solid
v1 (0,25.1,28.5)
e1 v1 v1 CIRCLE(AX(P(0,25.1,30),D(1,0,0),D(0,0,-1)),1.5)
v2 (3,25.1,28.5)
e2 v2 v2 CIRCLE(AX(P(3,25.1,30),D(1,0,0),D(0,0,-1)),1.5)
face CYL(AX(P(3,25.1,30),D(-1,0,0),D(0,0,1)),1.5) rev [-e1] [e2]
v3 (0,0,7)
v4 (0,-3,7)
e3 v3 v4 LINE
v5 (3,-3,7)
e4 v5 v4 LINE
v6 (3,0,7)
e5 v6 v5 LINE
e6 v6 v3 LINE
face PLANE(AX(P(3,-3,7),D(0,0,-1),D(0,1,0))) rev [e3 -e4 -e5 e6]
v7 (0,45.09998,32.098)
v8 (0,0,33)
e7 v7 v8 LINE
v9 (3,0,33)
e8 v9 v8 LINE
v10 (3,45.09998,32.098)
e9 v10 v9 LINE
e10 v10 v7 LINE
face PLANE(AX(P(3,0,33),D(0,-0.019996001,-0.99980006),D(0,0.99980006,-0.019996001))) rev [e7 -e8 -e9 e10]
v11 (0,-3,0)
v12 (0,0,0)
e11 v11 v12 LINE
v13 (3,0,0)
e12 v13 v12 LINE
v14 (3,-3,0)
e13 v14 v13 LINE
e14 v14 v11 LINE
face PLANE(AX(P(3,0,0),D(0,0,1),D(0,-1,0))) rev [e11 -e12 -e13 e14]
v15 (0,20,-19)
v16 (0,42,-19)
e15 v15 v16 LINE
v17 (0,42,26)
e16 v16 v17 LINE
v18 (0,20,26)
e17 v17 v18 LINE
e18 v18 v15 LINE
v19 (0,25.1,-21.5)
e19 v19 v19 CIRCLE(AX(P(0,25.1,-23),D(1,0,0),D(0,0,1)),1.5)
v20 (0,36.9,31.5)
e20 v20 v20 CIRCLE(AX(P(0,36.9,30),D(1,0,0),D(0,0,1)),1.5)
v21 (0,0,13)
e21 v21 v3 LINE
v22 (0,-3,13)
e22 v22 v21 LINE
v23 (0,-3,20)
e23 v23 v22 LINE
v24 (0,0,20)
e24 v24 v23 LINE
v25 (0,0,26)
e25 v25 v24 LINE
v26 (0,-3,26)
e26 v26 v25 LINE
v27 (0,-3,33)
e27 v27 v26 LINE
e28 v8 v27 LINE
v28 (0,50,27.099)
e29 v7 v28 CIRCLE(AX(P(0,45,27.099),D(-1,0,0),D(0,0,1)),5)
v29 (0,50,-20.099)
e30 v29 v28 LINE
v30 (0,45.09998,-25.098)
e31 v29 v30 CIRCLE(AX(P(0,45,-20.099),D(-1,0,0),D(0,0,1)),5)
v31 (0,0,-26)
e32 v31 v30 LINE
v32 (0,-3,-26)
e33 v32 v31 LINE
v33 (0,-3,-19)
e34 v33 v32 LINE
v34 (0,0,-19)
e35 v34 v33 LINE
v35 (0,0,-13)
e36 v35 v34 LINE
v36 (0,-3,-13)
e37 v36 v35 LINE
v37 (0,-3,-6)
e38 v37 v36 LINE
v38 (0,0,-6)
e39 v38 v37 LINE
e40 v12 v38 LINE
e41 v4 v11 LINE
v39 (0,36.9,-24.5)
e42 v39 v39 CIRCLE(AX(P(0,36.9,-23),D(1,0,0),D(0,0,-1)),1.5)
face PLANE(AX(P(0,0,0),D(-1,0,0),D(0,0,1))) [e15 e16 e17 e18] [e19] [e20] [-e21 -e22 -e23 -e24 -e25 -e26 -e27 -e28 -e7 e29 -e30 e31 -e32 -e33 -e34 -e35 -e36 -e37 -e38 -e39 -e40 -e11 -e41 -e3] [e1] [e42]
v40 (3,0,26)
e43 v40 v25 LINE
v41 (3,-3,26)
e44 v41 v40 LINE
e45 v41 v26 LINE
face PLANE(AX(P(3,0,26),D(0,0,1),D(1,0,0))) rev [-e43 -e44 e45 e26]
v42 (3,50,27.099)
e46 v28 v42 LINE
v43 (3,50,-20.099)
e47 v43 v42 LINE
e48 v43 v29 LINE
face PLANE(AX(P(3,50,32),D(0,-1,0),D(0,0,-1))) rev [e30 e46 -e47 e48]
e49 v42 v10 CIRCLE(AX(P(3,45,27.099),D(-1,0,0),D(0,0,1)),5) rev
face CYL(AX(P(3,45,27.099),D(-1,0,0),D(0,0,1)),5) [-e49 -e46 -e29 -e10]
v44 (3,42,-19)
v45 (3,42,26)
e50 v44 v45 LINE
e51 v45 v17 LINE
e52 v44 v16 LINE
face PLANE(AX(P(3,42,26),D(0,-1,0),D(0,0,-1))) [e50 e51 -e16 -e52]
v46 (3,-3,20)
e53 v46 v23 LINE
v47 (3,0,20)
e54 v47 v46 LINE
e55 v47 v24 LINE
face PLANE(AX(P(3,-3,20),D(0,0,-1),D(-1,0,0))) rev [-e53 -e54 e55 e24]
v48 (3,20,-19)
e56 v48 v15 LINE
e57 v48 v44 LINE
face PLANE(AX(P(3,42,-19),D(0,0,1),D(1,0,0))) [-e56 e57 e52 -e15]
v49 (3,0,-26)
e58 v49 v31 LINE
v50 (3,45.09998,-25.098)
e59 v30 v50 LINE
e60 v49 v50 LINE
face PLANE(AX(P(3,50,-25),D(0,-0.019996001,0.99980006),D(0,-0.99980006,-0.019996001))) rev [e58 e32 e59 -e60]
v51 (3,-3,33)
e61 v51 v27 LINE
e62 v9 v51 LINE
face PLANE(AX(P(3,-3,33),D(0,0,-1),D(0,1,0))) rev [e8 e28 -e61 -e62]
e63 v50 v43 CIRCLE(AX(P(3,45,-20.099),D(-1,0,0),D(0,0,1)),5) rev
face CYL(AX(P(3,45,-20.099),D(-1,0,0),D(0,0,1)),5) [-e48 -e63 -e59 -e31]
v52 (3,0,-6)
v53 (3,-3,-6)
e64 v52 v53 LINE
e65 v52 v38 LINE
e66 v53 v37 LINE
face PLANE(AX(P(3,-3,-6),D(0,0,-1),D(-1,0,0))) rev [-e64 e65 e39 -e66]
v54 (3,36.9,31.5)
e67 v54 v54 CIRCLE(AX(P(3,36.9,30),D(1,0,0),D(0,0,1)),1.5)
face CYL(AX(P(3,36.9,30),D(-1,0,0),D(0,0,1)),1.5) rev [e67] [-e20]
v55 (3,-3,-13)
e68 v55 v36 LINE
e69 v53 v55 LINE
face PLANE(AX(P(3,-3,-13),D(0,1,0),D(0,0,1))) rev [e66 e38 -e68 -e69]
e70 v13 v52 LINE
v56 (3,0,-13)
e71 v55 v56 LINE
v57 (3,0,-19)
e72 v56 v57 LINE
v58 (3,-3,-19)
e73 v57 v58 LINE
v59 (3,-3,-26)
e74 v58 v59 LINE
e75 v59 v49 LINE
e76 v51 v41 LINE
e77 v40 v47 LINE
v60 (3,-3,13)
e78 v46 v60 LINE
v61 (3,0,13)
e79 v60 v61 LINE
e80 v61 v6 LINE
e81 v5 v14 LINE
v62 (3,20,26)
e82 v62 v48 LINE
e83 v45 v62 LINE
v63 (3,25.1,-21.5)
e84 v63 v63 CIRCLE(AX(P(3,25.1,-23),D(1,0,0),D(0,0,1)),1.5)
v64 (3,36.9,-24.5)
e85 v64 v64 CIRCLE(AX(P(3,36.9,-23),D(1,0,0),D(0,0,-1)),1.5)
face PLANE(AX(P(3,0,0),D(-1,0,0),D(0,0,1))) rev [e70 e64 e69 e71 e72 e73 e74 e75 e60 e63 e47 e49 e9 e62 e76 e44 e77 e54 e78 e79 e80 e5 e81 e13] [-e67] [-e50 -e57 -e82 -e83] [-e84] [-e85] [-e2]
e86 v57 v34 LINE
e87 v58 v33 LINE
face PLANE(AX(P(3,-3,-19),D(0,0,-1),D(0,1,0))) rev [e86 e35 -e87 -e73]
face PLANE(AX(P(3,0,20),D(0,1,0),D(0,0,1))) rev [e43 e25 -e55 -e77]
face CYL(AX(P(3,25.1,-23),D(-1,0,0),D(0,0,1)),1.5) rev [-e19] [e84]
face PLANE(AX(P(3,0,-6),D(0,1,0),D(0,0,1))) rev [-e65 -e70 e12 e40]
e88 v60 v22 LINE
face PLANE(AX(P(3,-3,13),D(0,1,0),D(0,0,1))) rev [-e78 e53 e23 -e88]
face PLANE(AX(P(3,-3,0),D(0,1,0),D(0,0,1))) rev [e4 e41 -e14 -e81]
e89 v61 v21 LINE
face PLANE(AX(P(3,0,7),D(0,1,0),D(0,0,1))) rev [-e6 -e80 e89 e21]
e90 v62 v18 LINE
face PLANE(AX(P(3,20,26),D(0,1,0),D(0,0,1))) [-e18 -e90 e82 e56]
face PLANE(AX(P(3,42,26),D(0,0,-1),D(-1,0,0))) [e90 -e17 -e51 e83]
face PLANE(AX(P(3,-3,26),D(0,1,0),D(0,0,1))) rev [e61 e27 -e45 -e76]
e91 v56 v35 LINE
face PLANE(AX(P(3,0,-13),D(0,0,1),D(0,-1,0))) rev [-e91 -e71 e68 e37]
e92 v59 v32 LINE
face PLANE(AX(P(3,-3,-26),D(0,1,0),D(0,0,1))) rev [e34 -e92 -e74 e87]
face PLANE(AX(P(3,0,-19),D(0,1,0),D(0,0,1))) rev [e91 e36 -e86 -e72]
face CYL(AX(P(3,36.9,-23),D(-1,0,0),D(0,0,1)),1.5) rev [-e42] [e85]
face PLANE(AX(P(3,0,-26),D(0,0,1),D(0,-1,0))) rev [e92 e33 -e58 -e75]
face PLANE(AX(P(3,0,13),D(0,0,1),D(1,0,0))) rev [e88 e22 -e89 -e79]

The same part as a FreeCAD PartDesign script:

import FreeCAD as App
import Part
import Sketcher
from FreeCAD import Vector


def edges_at(feature, points):
    """Names of the edges that pass closest to the given points."""
    edges = feature.Shape.Edges
    near = lambda p: min(range(len(edges)), key=lambda i: edges[i].distToShape(Part.Vertex(*p))[0])
    return sorted({f"Edge{near(p) + 1}" for p in points})


def add_polygon(sketch, points):
    """Adds a closed chain of lines whose ends are joined by coincident constraints."""
    first, n = sketch.GeometryCount, len(points)
    for a, b in zip(points, points[1:] + points[:1]):
        sketch.addGeometry(Part.LineSegment(App.Vector(*a, 0), App.Vector(*b, 0)), False)
    for i in range(n):
        sketch.addConstraint(Sketcher.Constraint("Coincident", first + i, 2, first + (i + 1) % n, 1))

doc = App.newDocument("Part")
params = doc.addObject("Spreadsheet::Sheet", "Params")
for row, (alias, value) in enumerate([
    ("sketch1_diameter", "3 mm"),
    ("sketch1_width", "3 mm"),
    ("sketch1_width2", "22 mm"),
    ("sketch1_height", "7 mm"),
    ("sketch1_height2", "6 mm"),
    ("pad1_length", "3 mm"),
    ("fillet_radius", "5 mm"),
], start=1):
    params.set(f"A{row}", alias)
    params.set(f"B{row}", "=" + value)
    params.setAlias(f"B{row}", alias)

body = doc.addObject("PartDesign::Body", "Body")

sketch1 = body.newObject("Sketcher::SketchObject", "Sketch")
sketch1.AttachmentSupport = (doc.getObject("YZ_Plane"), [""])
sketch1.MapMode = "FlatFace"
add_polygon(sketch1, [(50, 32), (0, 33), (-3, 33), (-3, 26), (0, 26), (0, 20), (-3, 20), (-3, 13), (0, 13), (0, 7), (-3, 7), (-3, 0), (0, 0), (0, -6), (-3, -6), (-3, -13), (0, -13), (0, -19), (-3, -19), (-3, -26), (0, -26), (50, -25)])
sketch1.addGeometry(Part.Circle(Vector(25.1, -23, 0), Vector(0, 0, 1), 1.5), False)
sketch1.addGeometry(Part.Circle(Vector(25.1, 30, 0), Vector(0, 0, 1), 1.5), False)
sketch1.addGeometry(Part.Circle(Vector(36.9, -23, 0), Vector(0, 0, 1), 1.5), False)
add_polygon(sketch1, [(20, 26), (42, 26), (42, -19), (20, -19)])
sketch1.addGeometry(Part.Circle(Vector(36.9, 30, 0), Vector(0, 0, 1), 1.5), False)
sketch1.addConstraint([
    Sketcher.Constraint("Horizontal", 1),
    Sketcher.Constraint("Vertical", 2),
    Sketcher.Constraint("Horizontal", 3),
    Sketcher.Constraint("Vertical", 4),
    Sketcher.Constraint("Horizontal", 5),
    Sketcher.Constraint("Vertical", 6),
    Sketcher.Constraint("Horizontal", 7),
    Sketcher.Constraint("Vertical", 8),
    Sketcher.Constraint("Horizontal", 9),
    Sketcher.Constraint("Vertical", 10),
    Sketcher.Constraint("Horizontal", 11),
    Sketcher.Constraint("Vertical", 12),
    Sketcher.Constraint("Horizontal", 13),
    Sketcher.Constraint("Vertical", 14),
    Sketcher.Constraint("Horizontal", 15),
    Sketcher.Constraint("Vertical", 16),
    Sketcher.Constraint("Horizontal", 17),
    Sketcher.Constraint("Vertical", 18),
    Sketcher.Constraint("Horizontal", 19),
    Sketcher.Constraint("Vertical", 21),
    Sketcher.Constraint("Horizontal", 25),
    Sketcher.Constraint("Vertical", 26),
    Sketcher.Constraint("Horizontal", 27),
    Sketcher.Constraint("Vertical", 28),
    Sketcher.Constraint("Coincident", 11, 2, -1, 1),
    Sketcher.Constraint("Equal", 22, 23),
    Sketcher.Constraint("Equal", 23, 24),
    Sketcher.Constraint("Equal", 24, 29),
    Sketcher.Constraint("Symmetric", 7, 2, 15, 2, -1, 1),
    Sketcher.Constraint("Symmetric", 3, 2, 19, 2, -1, 1),
    Sketcher.Constraint("PointOnObject", 0, 2, -2),
    Sketcher.Constraint("PointOnObject", 3, 2, -2),
    Sketcher.Constraint("PointOnObject", 7, 2, -2),
    Sketcher.Constraint("Horizontal", 22, 3, 24, 3),
    Sketcher.Constraint("Horizontal", 23, 3, 29, 3),
    Sketcher.Constraint("Horizontal", 3, 2, 25, 2),
    Sketcher.Constraint("Horizontal", 17, 2, 26, 2),
    Sketcher.Constraint("Vertical", 22, 3, 23, 3),
    Sketcher.Constraint("Vertical", 24, 3, 29, 3),
    Sketcher.Constraint("Vertical", 2, 2, 5, 2),
    Sketcher.Constraint("Vertical", 6, 2, 9, 2),
    Sketcher.Constraint("Vertical", 10, 2, 13, 2),
    Sketcher.Constraint("Vertical", 14, 2, 17, 2),
    Sketcher.Constraint("Equal", 2, 6),
    Sketcher.Constraint("Equal", 4, 8),
    Sketcher.Constraint("Equal", 6, 10),
    Sketcher.Constraint("Equal", 8, 12),
    Sketcher.Constraint("Equal", 12, 16),
    Sketcher.Constraint("Equal", 0, 20),
    Sketcher.Constraint("Diameter", 22, 3.0),
    Sketcher.Constraint("DistanceX", 1, 2, 1, 1, 3.0),
    Sketcher.Constraint("DistanceX", 25, 1, 25, 2, 22.0),
    Sketcher.Constraint("DistanceY", 2, 2, 2, 1, 7.0),
    Sketcher.Constraint("DistanceY", 4, 2, 4, 1, 6.0),
    Sketcher.Constraint("DistanceY", 21, 1, 21, 2, 57.0),
    Sketcher.Constraint("DistanceY", 22, 3, -1, 1, 23.0),
    Sketcher.Constraint("DistanceY", -1, 1, 23, 3, 30.0),
    Sketcher.Constraint("DistanceX", -1, 1, 20, 2, 50.0),
    Sketcher.Constraint("DistanceX", -1, 1, 25, 2, 42.0),
    Sketcher.Constraint("DistanceX", -1, 1, 22, 3, 25.1),
    Sketcher.Constraint("DistanceX", -1, 1, 24, 3, 36.9),
])
sketch1.setExpression("Constraints[75]", "Params.sketch1_diameter")
sketch1.setExpression("Constraints[76]", "Params.sketch1_width")
sketch1.setExpression("Constraints[77]", "Params.sketch1_width2")
sketch1.setExpression("Constraints[78]", "Params.sketch1_height")
sketch1.setExpression("Constraints[79]", "Params.sketch1_height2")
pad1 = body.newObject("PartDesign::Pad", "Pad")
pad1.Profile = sketch1
pad1.setExpression("Length", "Params.pad1_length")
doc.recompute()

fillet = body.newObject("PartDesign::Fillet", "Fillet")
fillet.Base = (pad1, edges_at(pad1, [(1.5, 50, 32), (1.5, 50, -25)]))
fillet.setExpression("Radius", "Params.fillet_radius")

doc.recompute()
